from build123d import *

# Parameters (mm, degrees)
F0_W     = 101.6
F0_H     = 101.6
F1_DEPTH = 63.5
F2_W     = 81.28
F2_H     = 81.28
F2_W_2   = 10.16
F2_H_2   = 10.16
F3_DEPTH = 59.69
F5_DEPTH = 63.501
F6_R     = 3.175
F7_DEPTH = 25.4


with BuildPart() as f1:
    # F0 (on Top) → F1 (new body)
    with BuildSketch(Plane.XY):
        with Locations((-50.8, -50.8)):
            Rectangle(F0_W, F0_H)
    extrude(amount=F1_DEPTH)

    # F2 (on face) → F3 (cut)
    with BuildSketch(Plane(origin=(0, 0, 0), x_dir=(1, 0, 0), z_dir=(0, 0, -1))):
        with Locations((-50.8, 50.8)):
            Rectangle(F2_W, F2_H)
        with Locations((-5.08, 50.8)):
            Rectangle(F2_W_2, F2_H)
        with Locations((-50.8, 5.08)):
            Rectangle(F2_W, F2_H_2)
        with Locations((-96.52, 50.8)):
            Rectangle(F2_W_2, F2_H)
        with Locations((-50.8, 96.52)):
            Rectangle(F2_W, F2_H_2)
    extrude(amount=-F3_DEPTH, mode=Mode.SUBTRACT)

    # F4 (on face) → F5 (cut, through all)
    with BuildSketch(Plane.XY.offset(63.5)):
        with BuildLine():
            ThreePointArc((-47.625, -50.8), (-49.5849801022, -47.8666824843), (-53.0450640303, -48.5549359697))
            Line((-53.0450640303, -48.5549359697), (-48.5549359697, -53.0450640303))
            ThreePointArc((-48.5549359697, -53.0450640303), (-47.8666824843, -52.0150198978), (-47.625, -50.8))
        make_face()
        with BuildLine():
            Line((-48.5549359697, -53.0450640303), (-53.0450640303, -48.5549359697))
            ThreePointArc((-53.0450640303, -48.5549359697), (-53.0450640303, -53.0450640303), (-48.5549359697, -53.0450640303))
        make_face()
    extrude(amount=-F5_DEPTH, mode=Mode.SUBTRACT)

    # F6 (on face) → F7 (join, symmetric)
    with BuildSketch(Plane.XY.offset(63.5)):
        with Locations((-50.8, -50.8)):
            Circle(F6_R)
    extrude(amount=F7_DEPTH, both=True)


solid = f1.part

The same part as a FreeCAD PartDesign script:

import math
import FreeCAD as App
import Part
import Sketcher
from FreeCAD import Vector
Q = App.Units.Quantity

doc = App.newDocument("Part")
body = doc.addObject("PartDesign::Body", "Body")

sketch1 = body.newObject("Sketcher::SketchObject", "Sketch")
sketch1.AttachmentSupport = (doc.getObject("XY_Plane"), [""])
sketch1.MapMode = "FlatFace"
sketch1.addGeometry(Part.LineSegment(Vector(-102, 0, 0), Vector(-102, -102, 0)), False)
sketch1.addGeometry(Part.LineSegment(Vector(-102, -102, 0), Vector(0, -102, 0)), False)
sketch1.addGeometry(Part.LineSegment(Vector(0, -102, 0), Vector(0, 0, 0)), False)
sketch1.addGeometry(Part.LineSegment(Vector(0, 0, 0), Vector(-102, 0, 0)), False)
sketch1.addConstraint(Sketcher.Constraint("Coincident", 0, 2, 1, 1))
sketch1.addConstraint(Sketcher.Constraint("Coincident", 1, 2, 2, 1))
sketch1.addConstraint(Sketcher.Constraint("Coincident", 2, 2, 3, 1))
sketch1.addConstraint(Sketcher.Constraint("Coincident", 3, 2, 0, 1))
sketch1.addConstraint(Sketcher.Constraint("Vertical", 0))
sketch1.addConstraint(Sketcher.Constraint("Horizontal", 1))
sketch1.addConstraint(Sketcher.Constraint("Vertical", 2))
sketch1.addConstraint(Sketcher.Constraint("Horizontal", 3))
sketch1.addConstraint(Sketcher.Constraint("Coincident", 2, 2, -1, 1))
sketch1.addConstraint(Sketcher.Constraint("Equal", 3, 0))
sketch1.addConstraint(Sketcher.Constraint("DistanceX", 1, 1, 1, 2, Q("4 in")))
pad1 = body.newObject("PartDesign::Pad", "Pad")
pad1.Profile = sketch1
pad1.Length = Q("2.5 in")

sketch2 = body.newObject("Sketcher::SketchObject", "Sketch001")
sketch2.AttachmentSupport = (doc.getObject("XY_Plane"), [""])
sketch2.MapMode = "FlatFace"
sketch2.addGeometry(Part.LineSegment(Vector(-91, -10, 0), Vector(-91, 0, 0)), False)
sketch2.addGeometry(Part.LineSegment(Vector(-91, 0, 0), Vector(-10, 0, 0)), False)
sketch2.addGeometry(Part.LineSegment(Vector(-10, 0, 0), Vector(-10, -10, 0)), False)
sketch2.addGeometry(Part.LineSegment(Vector(-10, -10, 0), Vector(0, -10, 0)), False)
sketch2.addGeometry(Part.LineSegment(Vector(0, -10, 0), Vector(0, -91, 0)), False)
sketch2.addGeometry(Part.LineSegment(Vector(0, -91, 0), Vector(-10, -91, 0)), False)
sketch2.addGeometry(Part.LineSegment(Vector(-10, -91, 0), Vector(-10, -102, 0)), False)
sketch2.addGeometry(Part.LineSegment(Vector(-10, -102, 0), Vector(-91, -102, 0)), False)
sketch2.addGeometry(Part.LineSegment(Vector(-91, -102, 0), Vector(-91, -91, 0)), False)
sketch2.addGeometry(Part.LineSegment(Vector(-91, -91, 0), Vector(-102, -91, 0)), False)
sketch2.addGeometry(Part.LineSegment(Vector(-102, -91, 0), Vector(-102, -10, 0)), False)
sketch2.addGeometry(Part.LineSegment(Vector(-102, -10, 0), Vector(-91, -10, 0)), False)
sketch2.addConstraint(Sketcher.Constraint("Coincident", 0, 2, 1, 1))
sketch2.addConstraint(Sketcher.Constraint("Coincident", 1, 2, 2, 1))
sketch2.addConstraint(Sketcher.Constraint("Coincident", 2, 2, 3, 1))
sketch2.addConstraint(Sketcher.Constraint("Coincident", 3, 2, 4, 1))
sketch2.addConstraint(Sketcher.Constraint("Coincident", 4, 2, 5, 1))
sketch2.addConstraint(Sketcher.Constraint("Coincident", 5, 2, 6, 1))
sketch2.addConstraint(Sketcher.Constraint("Coincident", 6, 2, 7, 1))
sketch2.addConstraint(Sketcher.Constraint("Coincident", 7, 2, 8, 1))
sketch2.addConstraint(Sketcher.Constraint("Coincident", 8, 2, 9, 1))
sketch2.addConstraint(Sketcher.Constraint("Coincident", 9, 2, 10, 1))
sketch2.addConstraint(Sketcher.Constraint("Coincident", 10, 2, 11, 1))
sketch2.addConstraint(Sketcher.Constraint("Coincident", 11, 2, 0, 1))
sketch2.addConstraint(Sketcher.Constraint("Vertical", 0))
sketch2.addConstraint(Sketcher.Constraint("Horizontal", 1))
sketch2.addConstraint(Sketcher.Constraint("Vertical", 2))
sketch2.addConstraint(Sketcher.Constraint("Horizontal", 3))
sketch2.addConstraint(Sketcher.Constraint("Vertical", 4))
sketch2.addConstraint(Sketcher.Constraint("Horizontal", 5))
sketch2.addConstraint(Sketcher.Constraint("Vertical", 6))
sketch2.addConstraint(Sketcher.Constraint("Horizontal", 7))
sketch2.addConstraint(Sketcher.Constraint("Vertical", 8))
sketch2.addConstraint(Sketcher.Constraint("Horizontal", 9))
sketch2.addConstraint(Sketcher.Constraint("Vertical", 10))
sketch2.addConstraint(Sketcher.Constraint("Horizontal", 11))
sketch2.addConstraint(Sketcher.Constraint("PointOnObject", 0, 2, -1))
sketch2.addConstraint(Sketcher.Constraint("PointOnObject", 3, 2, -2))
sketch2.addConstraint(Sketcher.Constraint("Horizontal", 5, 2, 8, 2))
sketch2.addConstraint(Sketcher.Constraint("Horizontal", 3, 2, 10, 2))
sketch2.addConstraint(Sketcher.Constraint("Vertical", 2, 2, 5, 2))
sketch2.addConstraint(Sketcher.Constraint("Vertical", 0, 2, 7, 2))
sketch2.addConstraint(Sketcher.Constraint("Equal", 5, 9))
sketch2.addConstraint(Sketcher.Constraint("Equal", 11, 0))
sketch2.addConstraint(Sketcher.Constraint("Equal", 7, 4))
sketch2.addConstraint(Sketcher.Constraint("Equal", 2, 6))
sketch2.addConstraint(Sketcher.Constraint("DistanceX", 1, 1, 1, 2, Q("3.2 in")))
sketch2.addConstraint(Sketcher.Constraint("DistanceX", 3, 1, 3, 2, Q("0.4 in")))
pocket1 = body.newObject("PartDesign::Pocket", "Pocket")
pocket1.Profile = sketch2
pocket1.Length = Q("2.35 in")
pocket1.Reversed = True

sketch3 = body.newObject("Sketcher::SketchObject", "Sketch002")
sketch3.AttachmentSupport = (doc.getObject("XY_Plane"), [""])
sketch3.MapMode = "FlatFace"
sketch3.AttachmentOffset = App.Placement(Vector(0, 0, 2.5 * 25.4), App.Rotation())
sketch3.addGeometry(Part.ArcOfCircle(Part.Circle(Vector(-50.8, -50.8, 0), Vector(0, 0, 1), 3.2), math.radians(0), math.radians(135)), False)
sketch3.addGeometry(Part.ArcOfCircle(Part.Circle(Vector(-50.8, -50.8, 0), Vector(0, 0, 1), 3.2), math.radians(135), math.radians(315)), False)
sketch3.addGeometry(Part.ArcOfCircle(Part.Circle(Vector(-50.8, -50.8, 0), Vector(0, 0, 1), 3.2), math.radians(-45), math.radians(0)), False)
sketch3.addConstraint(Sketcher.Constraint("Tangent", 0, 2, 1, 1))
sketch3.addConstraint(Sketcher.Constraint("Tangent", 1, 2, 2, 1))
sketch3.addConstraint(Sketcher.Constraint("Tangent", 2, 2, 0, 1))
sketch3.addConstraint(Sketcher.Constraint("Horizontal", 1, 3, 2, 2))
sketch3.addConstraint(Sketcher.Constraint("DistanceX", 0, 3, -1, 1, Q("2 in")))
sketch3.addConstraint(Sketcher.Constraint("DistanceY", 0, 3, -1, 1, Q("2 in")))
sketch3.addConstraint(Sketcher.Constraint("Radius", 0, Q("0.125 in")))
sketch3.addConstraint(Sketcher.Constraint("DistanceX", 0, 2, 1, 2, 4.490128))
sketch3.addConstraint(Sketcher.Constraint("DistanceX", 0, 2, -1, 1, 53.045064))
pocket2 = body.newObject("PartDesign::Pocket", "Pocket001")
pocket2.Profile = sketch3
pocket2.Type = "ThroughAll"

sketch4 = body.newObject("Sketcher::SketchObject", "Sketch003")
sketch4.AttachmentSupport = (doc.getObject("XY_Plane"), [""])
sketch4.MapMode = "FlatFace"
sketch4.AttachmentOffset = App.Placement(Vector(0, 0, 2.5 * 25.4), App.Rotation())
sketch4.addGeometry(Part.Circle(Vector(-50.8, -50.8, 0), Vector(0, 0, 1), 3.2), False)
sketch4.addConstraint(Sketcher.Constraint("Diameter", 0, Q("0.25 in")))
sketch4.addConstraint(Sketcher.Constraint("DistanceX", 0, 3, -1, 1, Q("2 in")))
sketch4.addConstraint(Sketcher.Constraint("DistanceY", 0, 3, -1, 1, Q("2 in")))
pad2 = body.newObject("PartDesign::Pad", "Pad001")
pad2.Profile = sketch4
pad2.Length = Q("2 in")
pad2.Midplane = True

doc.recompute()
